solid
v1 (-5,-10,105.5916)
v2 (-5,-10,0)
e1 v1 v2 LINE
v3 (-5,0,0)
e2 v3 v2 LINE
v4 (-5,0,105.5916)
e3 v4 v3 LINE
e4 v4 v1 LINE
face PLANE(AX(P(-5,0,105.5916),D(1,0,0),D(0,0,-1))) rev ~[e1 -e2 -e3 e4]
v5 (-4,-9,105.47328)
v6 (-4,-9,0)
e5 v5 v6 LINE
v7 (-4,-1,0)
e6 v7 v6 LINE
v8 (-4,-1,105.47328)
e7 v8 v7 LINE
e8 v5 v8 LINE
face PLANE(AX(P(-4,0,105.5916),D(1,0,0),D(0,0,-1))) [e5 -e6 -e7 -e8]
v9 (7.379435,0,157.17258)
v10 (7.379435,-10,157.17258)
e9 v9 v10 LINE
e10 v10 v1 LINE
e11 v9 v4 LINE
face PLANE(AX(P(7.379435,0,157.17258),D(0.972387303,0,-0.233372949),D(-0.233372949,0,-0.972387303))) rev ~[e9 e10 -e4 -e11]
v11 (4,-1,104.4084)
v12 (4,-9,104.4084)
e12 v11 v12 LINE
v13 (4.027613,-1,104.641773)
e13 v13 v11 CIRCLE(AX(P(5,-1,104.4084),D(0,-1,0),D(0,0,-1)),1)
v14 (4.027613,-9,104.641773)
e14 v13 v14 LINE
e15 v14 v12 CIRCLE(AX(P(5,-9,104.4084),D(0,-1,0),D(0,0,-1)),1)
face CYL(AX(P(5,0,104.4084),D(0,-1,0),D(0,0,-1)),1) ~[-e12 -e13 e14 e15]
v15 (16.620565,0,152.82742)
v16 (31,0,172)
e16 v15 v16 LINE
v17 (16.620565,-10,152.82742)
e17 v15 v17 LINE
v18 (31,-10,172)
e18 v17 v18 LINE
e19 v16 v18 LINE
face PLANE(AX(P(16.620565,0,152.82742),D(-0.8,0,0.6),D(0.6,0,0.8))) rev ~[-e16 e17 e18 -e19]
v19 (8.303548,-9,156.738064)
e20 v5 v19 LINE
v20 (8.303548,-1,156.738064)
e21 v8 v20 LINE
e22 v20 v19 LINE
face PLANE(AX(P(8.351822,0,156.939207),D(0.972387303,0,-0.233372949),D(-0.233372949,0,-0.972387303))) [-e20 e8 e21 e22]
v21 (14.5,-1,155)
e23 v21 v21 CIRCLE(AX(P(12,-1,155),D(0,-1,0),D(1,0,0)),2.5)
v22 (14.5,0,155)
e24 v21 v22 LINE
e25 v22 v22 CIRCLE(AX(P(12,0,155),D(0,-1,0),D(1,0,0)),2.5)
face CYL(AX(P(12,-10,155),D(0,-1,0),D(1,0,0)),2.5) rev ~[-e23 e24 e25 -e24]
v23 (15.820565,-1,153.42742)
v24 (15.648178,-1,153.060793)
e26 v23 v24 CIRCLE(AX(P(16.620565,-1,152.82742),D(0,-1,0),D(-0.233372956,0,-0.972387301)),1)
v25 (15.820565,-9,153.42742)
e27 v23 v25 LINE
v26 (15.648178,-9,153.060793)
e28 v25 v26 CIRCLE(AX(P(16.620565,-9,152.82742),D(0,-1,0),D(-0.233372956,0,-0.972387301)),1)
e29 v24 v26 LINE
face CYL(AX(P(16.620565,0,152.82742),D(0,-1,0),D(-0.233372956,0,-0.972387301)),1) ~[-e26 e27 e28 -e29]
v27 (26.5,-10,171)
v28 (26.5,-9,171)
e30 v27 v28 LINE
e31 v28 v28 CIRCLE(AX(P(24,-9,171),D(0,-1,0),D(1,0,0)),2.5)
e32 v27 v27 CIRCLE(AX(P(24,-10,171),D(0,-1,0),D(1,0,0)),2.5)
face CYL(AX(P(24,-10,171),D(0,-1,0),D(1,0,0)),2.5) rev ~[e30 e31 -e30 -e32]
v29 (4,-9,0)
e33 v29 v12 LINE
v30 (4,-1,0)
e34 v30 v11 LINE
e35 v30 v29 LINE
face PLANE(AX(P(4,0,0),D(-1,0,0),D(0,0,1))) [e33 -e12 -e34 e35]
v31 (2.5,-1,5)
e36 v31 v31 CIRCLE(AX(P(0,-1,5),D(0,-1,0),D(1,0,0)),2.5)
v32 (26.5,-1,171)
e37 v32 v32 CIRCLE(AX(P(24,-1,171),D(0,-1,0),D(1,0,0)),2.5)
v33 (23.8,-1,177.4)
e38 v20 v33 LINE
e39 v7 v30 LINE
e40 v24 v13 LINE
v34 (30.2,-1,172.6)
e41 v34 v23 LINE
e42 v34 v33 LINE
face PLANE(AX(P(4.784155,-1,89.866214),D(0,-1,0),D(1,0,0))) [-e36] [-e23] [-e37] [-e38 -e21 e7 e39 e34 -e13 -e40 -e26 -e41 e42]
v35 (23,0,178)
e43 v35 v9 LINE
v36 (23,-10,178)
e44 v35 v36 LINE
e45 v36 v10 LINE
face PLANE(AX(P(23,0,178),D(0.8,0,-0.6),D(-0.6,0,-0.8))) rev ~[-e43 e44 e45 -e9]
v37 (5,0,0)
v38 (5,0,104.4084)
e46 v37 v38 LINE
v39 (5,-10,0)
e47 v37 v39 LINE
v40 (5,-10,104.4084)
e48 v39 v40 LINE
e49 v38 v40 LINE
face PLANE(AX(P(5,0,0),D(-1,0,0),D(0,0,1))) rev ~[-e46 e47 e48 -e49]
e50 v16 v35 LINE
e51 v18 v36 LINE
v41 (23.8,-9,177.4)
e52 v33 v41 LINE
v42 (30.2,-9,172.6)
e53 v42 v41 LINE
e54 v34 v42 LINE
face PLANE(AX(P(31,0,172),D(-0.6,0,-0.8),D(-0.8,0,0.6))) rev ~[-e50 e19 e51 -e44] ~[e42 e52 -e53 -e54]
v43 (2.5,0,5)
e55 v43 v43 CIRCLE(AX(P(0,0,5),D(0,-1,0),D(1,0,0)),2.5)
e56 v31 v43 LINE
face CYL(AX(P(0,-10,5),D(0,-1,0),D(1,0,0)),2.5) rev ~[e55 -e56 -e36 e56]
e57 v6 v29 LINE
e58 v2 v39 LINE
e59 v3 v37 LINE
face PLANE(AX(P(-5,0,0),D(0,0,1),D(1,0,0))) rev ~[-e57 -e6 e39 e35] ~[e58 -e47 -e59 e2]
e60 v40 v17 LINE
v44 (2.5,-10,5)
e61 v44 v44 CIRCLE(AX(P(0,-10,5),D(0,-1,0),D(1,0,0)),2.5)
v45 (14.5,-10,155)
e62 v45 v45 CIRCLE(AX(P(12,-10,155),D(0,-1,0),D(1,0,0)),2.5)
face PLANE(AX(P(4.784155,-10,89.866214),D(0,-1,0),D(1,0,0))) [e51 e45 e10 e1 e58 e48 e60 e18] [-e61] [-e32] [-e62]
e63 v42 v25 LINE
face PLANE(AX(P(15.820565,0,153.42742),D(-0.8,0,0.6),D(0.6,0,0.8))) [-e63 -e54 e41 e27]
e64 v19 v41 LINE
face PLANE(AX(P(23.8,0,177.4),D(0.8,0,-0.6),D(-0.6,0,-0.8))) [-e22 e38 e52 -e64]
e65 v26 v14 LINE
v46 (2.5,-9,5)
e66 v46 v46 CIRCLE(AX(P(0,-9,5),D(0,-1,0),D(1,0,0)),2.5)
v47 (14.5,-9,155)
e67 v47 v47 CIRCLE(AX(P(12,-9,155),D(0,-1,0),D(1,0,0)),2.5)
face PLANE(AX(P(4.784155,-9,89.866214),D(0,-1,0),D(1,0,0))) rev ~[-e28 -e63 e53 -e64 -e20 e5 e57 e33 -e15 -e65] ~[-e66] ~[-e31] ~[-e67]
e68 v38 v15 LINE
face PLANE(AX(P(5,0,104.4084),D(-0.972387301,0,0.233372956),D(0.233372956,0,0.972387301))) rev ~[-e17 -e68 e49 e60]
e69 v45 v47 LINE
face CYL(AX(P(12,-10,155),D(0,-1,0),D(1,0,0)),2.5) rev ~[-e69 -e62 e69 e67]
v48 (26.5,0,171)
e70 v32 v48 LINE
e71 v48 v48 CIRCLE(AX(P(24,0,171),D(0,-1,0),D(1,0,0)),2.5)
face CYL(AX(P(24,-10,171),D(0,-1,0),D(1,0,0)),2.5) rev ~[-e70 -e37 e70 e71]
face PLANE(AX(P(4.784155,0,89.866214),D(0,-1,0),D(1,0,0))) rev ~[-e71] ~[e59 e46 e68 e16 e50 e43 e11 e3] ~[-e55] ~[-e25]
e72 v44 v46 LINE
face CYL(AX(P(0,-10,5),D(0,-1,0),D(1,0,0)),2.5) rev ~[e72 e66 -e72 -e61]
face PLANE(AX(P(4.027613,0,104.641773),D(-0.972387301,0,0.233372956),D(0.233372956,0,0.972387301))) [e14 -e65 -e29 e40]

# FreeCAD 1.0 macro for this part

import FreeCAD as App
import Part
import Sketcher
from FreeCAD import Vector
Q = App.Units.Quantity


def faces_at(feature, points):
    """Names of the faces that lie closest to the given points."""
    faces = feature.Shape.Faces
    near = lambda p: min(range(len(faces)), key=lambda i: faces[i].distToShape(Part.Vertex(*p))[0])
    return sorted({f"Face{near(p) + 1}" for p in points})


def add_polygon(sketch, points):
    """Adds a closed chain of lines whose ends are joined by coincident constraints."""
    first, n = sketch.GeometryCount, len(points)
    for a, b in zip(points, points[1:] + points[:1]):
        sketch.addGeometry(Part.LineSegment(App.Vector(*a, 0), App.Vector(*b, 0)), False)
    for i in range(n):
        sketch.addConstraint(Sketcher.Constraint("Coincident", first + i, 2, first + (i + 1) % n, 1))

doc = App.newDocument("Part")
body = doc.addObject("PartDesign::Body", "Body")

# Sketch on XZ plane
sketch1 = body.newObject("Sketcher::SketchObject", "Sketch")
sketch1.AttachmentSupport = (doc.getObject("XZ_Plane"), [""])
sketch1.MapMode = "FlatFace"
add_polygon(sketch1, [(-5, 0), (5, 0), (5, 104), (17, 153), (31, 172), (23, 178), (7, 157), (-5, 106)])  # lines 0-7
sketch1.addConstraint(Sketcher.Constraint("Horizontal", 0))
sketch1.addConstraint(Sketcher.Constraint("Vertical", 1))
sketch1.addConstraint(Sketcher.Constraint("Vertical", 7))
sketch1.addConstraint(Sketcher.Constraint("Symmetric", 0, 2, 7, 2, -1, 1))
sketch1.addConstraint(Sketcher.Constraint("Perpendicular", 3, 4))
sketch1.addConstraint(Sketcher.Constraint("Perpendicular", 4, 5))
sketch1.addConstraint(Sketcher.Constraint("Parallel", 2, 6))
sketch1.addConstraint(Sketcher.Constraint("DistanceX", 0, 1, 0, 2, Q("10 mm")))
sketch1.addConstraint(Sketcher.Constraint("Distance", 4, Q("10 mm")))
sketch1.addConstraint(Sketcher.Constraint("DistanceX", -1, 1, 3, 2, Q("31 mm")))
sketch1.addConstraint(Sketcher.Constraint("DistanceY", -1, 1, 3, 2, Q("172 mm")))
sketch1.addConstraint(Sketcher.Constraint("DistanceX", -1, 1, 4, 2, Q("23 mm")))
sketch1.addConstraint(Sketcher.Constraint("DistanceY", 1, 1, 1, 2, Q("104.4084 mm")))
sketch1.addConstraint(Sketcher.Constraint("DistanceY", 7, 2, 7, 1, Q("105.5916 mm")))
sketch1.addConstraint(Sketcher.Constraint("DistanceY", -1, 1, 2, 2, Q("152.82742 mm")))
pad1 = body.newObject("PartDesign::Pad", "Pad")
pad1.Profile = sketch1
pad1.Length = 10
doc.recompute()

thickness = body.newObject("PartDesign::Thickness", "Thickness")
thickness.Base = (pad1, faces_at(pad1, [(27, -5, 175), (0, -5, 0)]))
thickness.Value = 1
thickness.Reversed = True
thickness.Join = "Arc"

# Sketch on XZ plane
sketch2 = body.newObject("Sketcher::SketchObject", "Sketch001")
sketch2.AttachmentSupport = (doc.getObject("XZ_Plane"), [""])
sketch2.MapMode = "FlatFace"
sketch2.AttachmentOffset = App.Placement(Vector(0, 0, 10), App.Rotation())
sketch2.addGeometry(Part.Circle(Vector(0, 5, 0), Vector(0, 0, 1), 2.5), False)
sketch2.addGeometry(Part.Circle(Vector(12, 155, 0), Vector(0, 0, 1), 2.5), False)
sketch2.addGeometry(Part.Circle(Vector(24, 171, 0), Vector(0, 0, 1), 2.5), False)
sketch2.addConstraint(Sketcher.Constraint("Equal", 0, 1))
sketch2.addConstraint(Sketcher.Constraint("Equal", 1, 2))
sketch2.addConstraint(Sketcher.Constraint("PointOnObject", 0, 3, -2))
sketch2.addConstraint(Sketcher.Constraint("Diameter", 0, Q("5 mm")))
sketch2.addConstraint(Sketcher.Constraint("DistanceY", -1, 1, 0, 3, Q("5 mm")))
sketch2.addConstraint(Sketcher.Constraint("DistanceX", -1, 1, 1, 3, Q("12 mm")))
sketch2.addConstraint(Sketcher.Constraint("DistanceY", -1, 1, 1, 3, Q("155 mm")))
sketch2.addConstraint(Sketcher.Constraint("DistanceX", -1, 1, 2, 3, Q("24 mm")))
sketch2.addConstraint(Sketcher.Constraint("DistanceY", -1, 1, 2, 3, Q("171 mm")))
pocket1 = body.newObject("PartDesign::Pocket", "Pocket")
pocket1.Profile = sketch2
pocket1.Type = "ThroughAll"

doc.recompute()
